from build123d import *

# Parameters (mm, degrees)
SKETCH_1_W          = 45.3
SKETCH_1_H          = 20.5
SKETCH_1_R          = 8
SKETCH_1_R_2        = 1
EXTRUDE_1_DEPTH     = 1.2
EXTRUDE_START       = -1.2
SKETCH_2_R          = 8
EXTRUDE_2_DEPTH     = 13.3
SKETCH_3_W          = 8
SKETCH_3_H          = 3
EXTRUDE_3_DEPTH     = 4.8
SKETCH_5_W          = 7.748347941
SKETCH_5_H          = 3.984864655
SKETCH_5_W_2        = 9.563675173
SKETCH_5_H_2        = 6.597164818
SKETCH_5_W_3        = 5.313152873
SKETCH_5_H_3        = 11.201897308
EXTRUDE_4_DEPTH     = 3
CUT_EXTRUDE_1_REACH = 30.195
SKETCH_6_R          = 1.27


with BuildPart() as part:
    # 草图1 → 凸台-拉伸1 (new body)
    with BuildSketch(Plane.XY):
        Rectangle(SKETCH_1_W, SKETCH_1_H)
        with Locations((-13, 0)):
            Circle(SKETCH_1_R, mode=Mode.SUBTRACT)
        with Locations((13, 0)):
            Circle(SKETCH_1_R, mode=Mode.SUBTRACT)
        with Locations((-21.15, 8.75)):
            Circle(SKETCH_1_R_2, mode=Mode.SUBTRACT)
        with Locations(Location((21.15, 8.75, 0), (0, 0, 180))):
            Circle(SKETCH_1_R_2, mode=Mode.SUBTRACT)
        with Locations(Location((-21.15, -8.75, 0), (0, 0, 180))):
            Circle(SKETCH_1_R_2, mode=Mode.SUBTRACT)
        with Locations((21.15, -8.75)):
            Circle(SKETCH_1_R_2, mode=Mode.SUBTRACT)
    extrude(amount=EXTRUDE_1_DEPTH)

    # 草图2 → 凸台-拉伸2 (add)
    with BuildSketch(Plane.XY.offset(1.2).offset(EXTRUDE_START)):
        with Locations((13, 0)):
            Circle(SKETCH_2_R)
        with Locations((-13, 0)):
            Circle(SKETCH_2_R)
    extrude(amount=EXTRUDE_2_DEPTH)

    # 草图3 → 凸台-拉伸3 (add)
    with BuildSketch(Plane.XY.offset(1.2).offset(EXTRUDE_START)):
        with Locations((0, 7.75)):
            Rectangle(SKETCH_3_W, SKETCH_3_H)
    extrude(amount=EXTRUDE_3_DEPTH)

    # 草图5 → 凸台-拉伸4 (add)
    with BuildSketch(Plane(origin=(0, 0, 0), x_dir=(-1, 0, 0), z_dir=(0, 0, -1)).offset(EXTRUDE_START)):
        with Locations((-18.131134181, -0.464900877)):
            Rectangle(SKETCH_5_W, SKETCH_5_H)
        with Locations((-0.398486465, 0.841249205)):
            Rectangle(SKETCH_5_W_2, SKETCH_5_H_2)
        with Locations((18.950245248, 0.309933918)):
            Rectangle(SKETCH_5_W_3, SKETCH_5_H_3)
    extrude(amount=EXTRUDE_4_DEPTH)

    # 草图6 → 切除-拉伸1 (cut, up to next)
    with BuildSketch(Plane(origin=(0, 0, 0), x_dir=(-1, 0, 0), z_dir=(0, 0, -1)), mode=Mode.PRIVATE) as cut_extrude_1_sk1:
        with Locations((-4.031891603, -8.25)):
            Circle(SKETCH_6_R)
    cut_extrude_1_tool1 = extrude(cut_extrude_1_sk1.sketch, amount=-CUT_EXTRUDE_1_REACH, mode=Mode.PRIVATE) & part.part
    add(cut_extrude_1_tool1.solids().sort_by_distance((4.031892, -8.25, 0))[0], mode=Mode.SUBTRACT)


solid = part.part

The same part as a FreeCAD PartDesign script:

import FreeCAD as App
import Part
import Sketcher
from FreeCAD import Vector


def add_polygon(sketch, points):
    """Adds a closed chain of lines whose ends are joined by coincident constraints."""
    first, n = sketch.GeometryCount, len(points)
    for a, b in zip(points, points[1:] + points[:1]):
        sketch.addGeometry(Part.LineSegment(App.Vector(*a, 0), App.Vector(*b, 0)), False)
    for i in range(n):
        sketch.addConstraint(Sketcher.Constraint("Coincident", first + i, 2, first + (i + 1) % n, 1))

doc = App.newDocument("Part")
body = doc.addObject("PartDesign::Body", "Body")

# Sketch on XY plane
sketch1 = doc.addObject("Sketcher::SketchObject", "Sketch")
body.addObject(sketch1)
sketch1.AttachmentSupport = (doc.XY_Plane, [""])
sketch1.MapMode = "FlatFace"
add_polygon(sketch1, [(-22.65, 10.25), (-22.65, -10.25), (22.65, -10.25), (22.65, 10.25)])  # lines 0-3
sketch1.addGeometry(Part.Circle(Vector(-21.15, -8.75, 0), Vector(0, 0, 1), 1), False)  # 4
sketch1.addGeometry(Part.Circle(Vector(21.15, -8.75, 0), Vector(0, 0, 1), 1), False)  # 5
sketch1.addGeometry(Part.Circle(Vector(-13, 0, 0), Vector(0, 0, 1), 8), False)  # 6
sketch1.addGeometry(Part.Circle(Vector(-21.15, 8.75, 0), Vector(0, 0, 1), 1), False)  # 7
sketch1.addGeometry(Part.Circle(Vector(13, 0, 0), Vector(0, 0, 1), 8), False)  # 8
sketch1.addGeometry(Part.Circle(Vector(21.15, 8.75, 0), Vector(0, 0, 1), 1), False)  # 9
sketch1.addConstraint(Sketcher.Constraint("Vertical", 0))
sketch1.addConstraint(Sketcher.Constraint("Horizontal", 1))
sketch1.addConstraint(Sketcher.Constraint("Vertical", 2))
sketch1.addConstraint(Sketcher.Constraint("Horizontal", 3))
sketch1.addConstraint(Sketcher.Constraint("Equal", 4, 5))
sketch1.addConstraint(Sketcher.Constraint("Equal", 5, 7))
sketch1.addConstraint(Sketcher.Constraint("Equal", 6, 8))
sketch1.addConstraint(Sketcher.Constraint("Equal", 7, 9))
sketch1.addConstraint(Sketcher.Constraint("Symmetric", 5, 3, 7, 3, -1, 1))
sketch1.addConstraint(Sketcher.Constraint("Symmetric", 6, 3, 8, 3, -1, 1))
sketch1.addConstraint(Sketcher.Constraint("Symmetric", 4, 3, 9, 3, -1, 1))
sketch1.addConstraint(Sketcher.Constraint("Symmetric", 0, 2, 2, 2, -1, 1))
sketch1.addConstraint(Sketcher.Constraint("Symmetric", 4, 3, 5, 3, -2))
sketch1.addConstraint(Sketcher.Constraint("PointOnObject", 6, 3, -1))
sketch1.addConstraint(Sketcher.Constraint("Diameter", 4, 2.0))
sketch1.addConstraint(Sketcher.Constraint("Diameter", 6, 16.0))
sketch1.addConstraint(Sketcher.Constraint("DistanceX", 1, 1, 1, 2, 45.3))
sketch1.addConstraint(Sketcher.Constraint("DistanceY", 0, 2, 0, 1, 20.5))
sketch1.addConstraint(Sketcher.Constraint("DistanceX", 6, 3, -1, 1, 13.0))
sketch1.addConstraint(Sketcher.Constraint("DistanceY", 0, 2, 7, 3, 19.0))
sketch1.addConstraint(Sketcher.Constraint("DistanceX", 4, 3, 5, 3, 42.3))
pad1 = doc.addObject("PartDesign::Pad", "Pad")
body.addObject(pad1)
pad1.Profile = sketch1
pad1.Length = 1.2

# Sketch on XY plane
sketch2 = doc.addObject("Sketcher::SketchObject", "Sketch001")
body.addObject(sketch2)
sketch2.AttachmentSupport = (doc.XY_Plane, [""])
sketch2.MapMode = "FlatFace"
sketch2.addGeometry(Part.Circle(Vector(13, 0, 0), Vector(0, 0, 1), 8), False)
sketch2.addGeometry(Part.Circle(Vector(-13, 0, 0), Vector(0, 0, 1), 8), False)
sketch2.addConstraint(Sketcher.Constraint("Equal", 0, 1))
sketch2.addConstraint(Sketcher.Constraint("Symmetric", 0, 3, 1, 3, -1, 1))
sketch2.addConstraint(Sketcher.Constraint("PointOnObject", 0, 3, -1))
sketch2.addConstraint(Sketcher.Constraint("Diameter", 0, 16.0))
sketch2.addConstraint(Sketcher.Constraint("DistanceX", -1, 1, 0, 3, 13.0))
pad2 = doc.addObject("PartDesign::Pad", "Pad001")
body.addObject(pad2)
pad2.Profile = sketch2
pad2.Length = 13.3

# Sketch on XY plane
sketch3 = doc.addObject("Sketcher::SketchObject", "Sketch002")
body.addObject(sketch3)
sketch3.AttachmentSupport = (doc.XY_Plane, [""])
sketch3.MapMode = "FlatFace"
add_polygon(sketch3, [(-4, 9.25), (-4, 6.25), (4, 6.25), (4, 9.25)])  # lines 0-3
sketch3.addConstraint(Sketcher.Constraint("Vertical", 0))
sketch3.addConstraint(Sketcher.Constraint("Horizontal", 1))
sketch3.addConstraint(Sketcher.Constraint("Vertical", 2))
sketch3.addConstraint(Sketcher.Constraint("Horizontal", 3))
sketch3.addConstraint(Sketcher.Constraint("DistanceX", 1, 1, 1, 2, 8.0))
sketch3.addConstraint(Sketcher.Constraint("DistanceY", 0, 2, 0, 1, 3.0))
sketch3.addConstraint(Sketcher.Constraint("DistanceX", 0, 2, -1, 1, 4.0))
sketch3.addConstraint(Sketcher.Constraint("DistanceY", -1, 1, 0, 2, 6.25))
pad3 = doc.addObject("PartDesign::Pad", "Pad002")
body.addObject(pad3)
pad3.Profile = sketch3
pad3.Length = 4.8

# Sketch on XY plane
sketch4 = doc.addObject("Sketcher::SketchObject", "Sketch003")
body.addObject(sketch4)
sketch4.AttachmentSupport = (doc.XY_Plane, [""])
sketch4.MapMode = "FlatFace"
sketch4.AttachmentOffset = App.Placement(Vector(0, 0, 1.2), App.Rotation())
add_polygon(sketch4, [(22.005308, 1.527531), (22.005308, -2.457333), (14.25696, -2.457333), (14.25696, 1.527531)])  # lines 0-3
add_polygon(sketch4, [(5.180324, 4.139832), (5.180324, -2.457333), (-4.383351, -2.457333), (-4.383351, 4.139832)])  # lines 4-7
add_polygon(sketch4, [(-16.293669, 5.910883), (-16.293669, -5.291015), (-21.606822, -5.291015), (-21.606822, 5.910883)])  # lines 8-11
sketch4.addConstraint(Sketcher.Constraint("Vertical", 0))
sketch4.addConstraint(Sketcher.Constraint("Horizontal", 1))
sketch4.addConstraint(Sketcher.Constraint("Vertical", 2))
sketch4.addConstraint(Sketcher.Constraint("Horizontal", 3))
sketch4.addConstraint(Sketcher.Constraint("Vertical", 4))
sketch4.addConstraint(Sketcher.Constraint("Horizontal", 5))
sketch4.addConstraint(Sketcher.Constraint("Vertical", 6))
sketch4.addConstraint(Sketcher.Constraint("Horizontal", 7))
sketch4.addConstraint(Sketcher.Constraint("Vertical", 8))
sketch4.addConstraint(Sketcher.Constraint("Horizontal", 9))
sketch4.addConstraint(Sketcher.Constraint("Vertical", 10))
sketch4.addConstraint(Sketcher.Constraint("Horizontal", 11))
sketch4.addConstraint(Sketcher.Constraint("Horizontal", 1, 2, 4, 2))
sketch4.addConstraint(Sketcher.Constraint("DistanceY", 2, 2, 6, 2, 2.6123))
sketch4.addConstraint(Sketcher.Constraint("DistanceX", 1, 2, 1, 1, 7.748348))
sketch4.addConstraint(Sketcher.Constraint("DistanceX", 5, 2, 5, 1, 9.563675))
sketch4.addConstraint(Sketcher.Constraint("DistanceX", 9, 2, 9, 1, 5.313153))
sketch4.addConstraint(Sketcher.Constraint("DistanceY", 0, 2, 0, 1, 3.984865))
sketch4.addConstraint(Sketcher.Constraint("DistanceY", 8, 2, 8, 1, 11.201897))
sketch4.addConstraint(Sketcher.Constraint("DistanceX", -1, 1, 0, 2, 22.005308))
sketch4.addConstraint(Sketcher.Constraint("DistanceY", -1, 1, 2, 2, 1.527531))
sketch4.addConstraint(Sketcher.Constraint("DistanceX", 5, 2, -1, 1, 4.383351))
sketch4.addConstraint(Sketcher.Constraint("DistanceX", 8, 2, -1, 1, 16.293669))
sketch4.addConstraint(Sketcher.Constraint("DistanceY", 8, 2, 5, 2, 2.833682))
pad4 = doc.addObject("PartDesign::Pad", "Pad003")
body.addObject(pad4)
pad4.Profile = sketch4
pad4.Length = 3
pad4.Reversed = True

# Sketch on XY plane
sketch5 = doc.addObject("Sketcher::SketchObject", "Sketch004")
body.addObject(sketch5)
sketch5.AttachmentSupport = (doc.XY_Plane, [""])
sketch5.MapMode = "FlatFace"
sketch5.addGeometry(Part.Circle(Vector(4.031892, -8.25, 0), Vector(0, 0, 1), 1.27), False)
sketch5.addConstraint(Sketcher.Constraint("Diameter", 0, 2.54))
sketch5.addConstraint(Sketcher.Constraint("DistanceY", 0, 3, -1, 1, 8.25))
sketch5.addConstraint(Sketcher.Constraint("DistanceX", -1, 1, 0, 3, 4.031892))
pocket1 = doc.addObject("PartDesign::Pocket", "Pocket")
body.addObject(pocket1)
pocket1.Profile = sketch5
pocket1.Type = "UpToFirst"
pocket1.Reversed = True

doc.recompute()
